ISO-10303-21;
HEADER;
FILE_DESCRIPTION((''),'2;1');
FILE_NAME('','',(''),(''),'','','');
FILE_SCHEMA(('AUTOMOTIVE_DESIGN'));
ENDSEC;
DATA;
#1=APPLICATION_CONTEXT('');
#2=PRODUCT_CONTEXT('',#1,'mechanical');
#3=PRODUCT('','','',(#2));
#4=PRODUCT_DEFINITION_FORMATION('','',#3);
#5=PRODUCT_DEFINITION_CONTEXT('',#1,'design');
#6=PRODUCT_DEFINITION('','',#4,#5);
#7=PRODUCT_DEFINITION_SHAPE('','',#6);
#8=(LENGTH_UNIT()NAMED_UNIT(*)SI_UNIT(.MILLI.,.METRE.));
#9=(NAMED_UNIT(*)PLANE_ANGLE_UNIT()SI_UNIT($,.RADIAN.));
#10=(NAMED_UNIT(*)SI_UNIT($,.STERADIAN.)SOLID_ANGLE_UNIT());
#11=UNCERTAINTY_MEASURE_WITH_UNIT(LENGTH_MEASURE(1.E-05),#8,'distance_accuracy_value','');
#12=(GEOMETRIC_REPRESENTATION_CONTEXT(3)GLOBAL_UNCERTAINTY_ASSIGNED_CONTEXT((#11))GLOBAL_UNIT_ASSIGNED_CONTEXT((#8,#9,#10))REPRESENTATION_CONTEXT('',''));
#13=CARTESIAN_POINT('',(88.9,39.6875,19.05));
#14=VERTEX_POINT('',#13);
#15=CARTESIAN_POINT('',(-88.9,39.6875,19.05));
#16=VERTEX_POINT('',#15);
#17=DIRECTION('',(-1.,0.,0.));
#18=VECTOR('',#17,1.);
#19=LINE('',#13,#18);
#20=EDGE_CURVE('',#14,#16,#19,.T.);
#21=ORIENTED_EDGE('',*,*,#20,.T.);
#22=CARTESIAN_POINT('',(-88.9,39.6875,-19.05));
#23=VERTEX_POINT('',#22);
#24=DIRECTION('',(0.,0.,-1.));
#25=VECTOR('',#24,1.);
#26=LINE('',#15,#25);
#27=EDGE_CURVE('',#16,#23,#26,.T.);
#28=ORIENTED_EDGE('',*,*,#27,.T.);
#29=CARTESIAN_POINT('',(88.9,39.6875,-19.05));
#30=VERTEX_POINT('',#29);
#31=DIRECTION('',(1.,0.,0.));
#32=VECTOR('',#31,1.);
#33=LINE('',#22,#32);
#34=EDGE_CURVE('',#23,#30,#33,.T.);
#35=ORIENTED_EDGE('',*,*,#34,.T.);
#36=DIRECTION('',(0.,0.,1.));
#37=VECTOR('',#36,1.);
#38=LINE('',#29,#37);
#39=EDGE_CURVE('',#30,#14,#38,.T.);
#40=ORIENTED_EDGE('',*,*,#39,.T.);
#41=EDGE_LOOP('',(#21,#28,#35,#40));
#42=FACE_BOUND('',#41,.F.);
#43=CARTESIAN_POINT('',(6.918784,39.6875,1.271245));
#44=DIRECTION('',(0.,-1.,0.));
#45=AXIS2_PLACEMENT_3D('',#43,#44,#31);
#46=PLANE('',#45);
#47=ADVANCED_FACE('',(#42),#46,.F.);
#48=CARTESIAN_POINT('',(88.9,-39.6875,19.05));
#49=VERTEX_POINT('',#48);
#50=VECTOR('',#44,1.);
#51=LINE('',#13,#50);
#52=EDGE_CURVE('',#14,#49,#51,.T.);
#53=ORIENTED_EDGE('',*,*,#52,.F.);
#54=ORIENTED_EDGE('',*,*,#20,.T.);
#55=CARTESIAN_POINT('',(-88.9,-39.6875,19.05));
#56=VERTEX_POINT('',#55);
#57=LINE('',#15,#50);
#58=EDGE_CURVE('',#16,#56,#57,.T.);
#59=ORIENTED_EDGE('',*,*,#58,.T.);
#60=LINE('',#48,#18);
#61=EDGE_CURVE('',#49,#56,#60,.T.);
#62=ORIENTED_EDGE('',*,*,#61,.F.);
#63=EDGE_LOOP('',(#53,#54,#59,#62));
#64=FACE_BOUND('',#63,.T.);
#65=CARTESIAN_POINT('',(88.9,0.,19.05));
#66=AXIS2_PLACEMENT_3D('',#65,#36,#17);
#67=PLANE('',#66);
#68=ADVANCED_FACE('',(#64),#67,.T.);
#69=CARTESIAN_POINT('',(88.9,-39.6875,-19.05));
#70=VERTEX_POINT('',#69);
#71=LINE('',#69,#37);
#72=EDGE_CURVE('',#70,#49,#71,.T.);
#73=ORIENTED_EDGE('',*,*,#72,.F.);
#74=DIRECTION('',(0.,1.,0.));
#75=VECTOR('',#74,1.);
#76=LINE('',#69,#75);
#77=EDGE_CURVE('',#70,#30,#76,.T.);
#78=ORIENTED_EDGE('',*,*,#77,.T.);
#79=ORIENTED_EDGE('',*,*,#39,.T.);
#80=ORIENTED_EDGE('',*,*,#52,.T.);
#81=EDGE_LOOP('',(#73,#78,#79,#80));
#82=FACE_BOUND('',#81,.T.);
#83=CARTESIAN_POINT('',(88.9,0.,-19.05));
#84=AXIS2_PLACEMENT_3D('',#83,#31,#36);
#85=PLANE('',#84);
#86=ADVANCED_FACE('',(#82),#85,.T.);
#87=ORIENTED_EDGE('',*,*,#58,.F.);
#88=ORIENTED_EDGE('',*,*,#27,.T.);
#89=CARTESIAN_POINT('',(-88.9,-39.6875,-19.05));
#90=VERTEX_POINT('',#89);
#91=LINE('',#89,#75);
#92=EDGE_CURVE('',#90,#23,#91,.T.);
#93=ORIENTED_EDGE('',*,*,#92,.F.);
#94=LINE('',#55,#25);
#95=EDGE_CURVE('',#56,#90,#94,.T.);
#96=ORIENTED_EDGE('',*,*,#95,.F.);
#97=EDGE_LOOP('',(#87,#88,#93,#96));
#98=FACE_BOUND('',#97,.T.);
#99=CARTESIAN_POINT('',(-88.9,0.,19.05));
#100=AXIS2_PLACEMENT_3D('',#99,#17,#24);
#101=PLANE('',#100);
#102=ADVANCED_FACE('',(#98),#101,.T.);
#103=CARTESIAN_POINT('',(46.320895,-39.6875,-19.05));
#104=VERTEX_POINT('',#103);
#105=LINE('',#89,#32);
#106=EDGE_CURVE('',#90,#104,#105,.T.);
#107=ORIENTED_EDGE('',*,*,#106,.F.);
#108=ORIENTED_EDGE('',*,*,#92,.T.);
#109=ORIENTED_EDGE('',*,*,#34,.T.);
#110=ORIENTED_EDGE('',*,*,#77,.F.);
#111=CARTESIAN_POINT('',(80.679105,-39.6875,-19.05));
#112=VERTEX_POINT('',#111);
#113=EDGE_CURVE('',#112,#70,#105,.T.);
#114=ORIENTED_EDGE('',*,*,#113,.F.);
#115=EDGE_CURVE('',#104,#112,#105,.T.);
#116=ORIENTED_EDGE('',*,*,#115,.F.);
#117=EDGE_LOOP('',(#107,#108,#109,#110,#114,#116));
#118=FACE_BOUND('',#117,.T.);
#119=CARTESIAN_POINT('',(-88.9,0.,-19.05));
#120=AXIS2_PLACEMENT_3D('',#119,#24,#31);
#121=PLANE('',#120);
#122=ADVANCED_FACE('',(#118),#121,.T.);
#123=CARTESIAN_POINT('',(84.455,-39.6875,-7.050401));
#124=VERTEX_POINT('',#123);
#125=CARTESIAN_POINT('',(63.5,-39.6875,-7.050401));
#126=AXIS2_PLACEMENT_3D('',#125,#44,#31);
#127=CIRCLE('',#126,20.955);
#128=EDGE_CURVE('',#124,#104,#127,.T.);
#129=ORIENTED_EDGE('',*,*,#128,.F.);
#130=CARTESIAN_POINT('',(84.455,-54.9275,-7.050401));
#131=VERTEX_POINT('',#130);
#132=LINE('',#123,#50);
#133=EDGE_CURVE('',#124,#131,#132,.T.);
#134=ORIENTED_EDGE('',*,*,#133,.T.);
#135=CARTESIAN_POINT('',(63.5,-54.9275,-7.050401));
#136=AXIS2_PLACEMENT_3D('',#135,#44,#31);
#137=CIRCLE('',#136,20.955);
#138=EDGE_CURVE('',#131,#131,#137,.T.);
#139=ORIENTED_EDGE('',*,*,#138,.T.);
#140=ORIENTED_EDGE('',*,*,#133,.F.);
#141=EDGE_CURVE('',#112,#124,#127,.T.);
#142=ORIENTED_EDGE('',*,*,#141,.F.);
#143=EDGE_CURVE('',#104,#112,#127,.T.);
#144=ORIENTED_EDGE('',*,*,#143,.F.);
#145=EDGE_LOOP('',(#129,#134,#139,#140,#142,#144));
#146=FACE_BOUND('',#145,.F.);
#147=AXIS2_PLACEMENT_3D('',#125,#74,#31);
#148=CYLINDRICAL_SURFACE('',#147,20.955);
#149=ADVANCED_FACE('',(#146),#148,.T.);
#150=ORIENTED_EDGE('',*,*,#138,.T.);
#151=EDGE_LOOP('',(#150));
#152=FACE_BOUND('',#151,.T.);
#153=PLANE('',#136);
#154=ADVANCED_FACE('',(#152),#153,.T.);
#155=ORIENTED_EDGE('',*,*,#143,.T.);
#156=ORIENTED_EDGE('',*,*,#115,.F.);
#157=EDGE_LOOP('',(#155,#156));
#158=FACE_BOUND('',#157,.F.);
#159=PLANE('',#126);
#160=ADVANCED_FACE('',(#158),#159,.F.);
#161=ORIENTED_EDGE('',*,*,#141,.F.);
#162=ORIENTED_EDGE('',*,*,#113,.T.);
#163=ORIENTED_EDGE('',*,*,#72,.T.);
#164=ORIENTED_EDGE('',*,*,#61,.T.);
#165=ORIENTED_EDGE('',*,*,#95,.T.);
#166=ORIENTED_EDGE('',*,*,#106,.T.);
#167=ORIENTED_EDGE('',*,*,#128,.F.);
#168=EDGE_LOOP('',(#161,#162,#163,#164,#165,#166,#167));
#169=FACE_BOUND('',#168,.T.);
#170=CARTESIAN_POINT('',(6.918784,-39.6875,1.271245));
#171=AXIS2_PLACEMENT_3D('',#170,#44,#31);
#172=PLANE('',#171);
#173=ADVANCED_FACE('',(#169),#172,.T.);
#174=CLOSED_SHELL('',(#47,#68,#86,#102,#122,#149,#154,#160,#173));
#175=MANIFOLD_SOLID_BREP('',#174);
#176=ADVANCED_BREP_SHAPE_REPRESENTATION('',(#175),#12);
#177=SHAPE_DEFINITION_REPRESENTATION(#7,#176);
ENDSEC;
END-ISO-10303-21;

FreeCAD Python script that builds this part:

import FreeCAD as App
import Part
import Sketcher
from FreeCAD import Vector
Q = App.Units.Quantity


def add_polygon(sketch, points):
    """Adds a closed chain of lines whose ends are joined by coincident constraints."""
    first, n = sketch.GeometryCount, len(points)
    for a, b in zip(points, points[1:] + points[:1]):
        sketch.addGeometry(Part.LineSegment(App.Vector(*a, 0), App.Vector(*b, 0)), False)
    for i in range(n):
        sketch.addConstraint(Sketcher.Constraint("Coincident", first + i, 2, first + (i + 1) % n, 1))

doc = App.newDocument("Part")
body = doc.addObject("PartDesign::Body", "Body")

sketch1 = body.newObject("Sketcher::SketchObject", "Sketch")
sketch1.AttachmentSupport = (doc.getObject("XZ_Plane"), [""])
sketch1.MapMode = "FlatFace"
add_polygon(sketch1, [(89, -19), (89, 19), (-89, 19), (-89, -19)])
sketch1.addConstraint(Sketcher.Constraint("Vertical", 0))
sketch1.addConstraint(Sketcher.Constraint("Horizontal", 1))
sketch1.addConstraint(Sketcher.Constraint("Vertical", 2))
sketch1.addConstraint(Sketcher.Constraint("Horizontal", 3))
sketch1.addConstraint(Sketcher.Constraint("Symmetric", 0, 2, 2, 2, -1, 1))
sketch1.addConstraint(Sketcher.Constraint("DistanceX", 1, 2, 1, 1, Q("7 in")))
sketch1.addConstraint(Sketcher.Constraint("DistanceY", 0, 1, 0, 2, Q("1.5 in")))
pad1 = body.newObject("PartDesign::Pad", "Pad")
pad1.Profile = sketch1
pad1.Length = Q("3.125 in")
pad1.Midplane = True

sketch2 = body.newObject("Sketcher::SketchObject", "Sketch001")
sketch2.AttachmentSupport = (doc.getObject("XZ_Plane"), [""])
sketch2.MapMode = "FlatFace"
sketch2.AttachmentOffset = App.Placement(Vector(0, 0, 1.5625 * 25.4), App.Rotation())
sketch2.addGeometry(Part.Circle(Vector(64, -7, 0), Vector(0, 0, 1), 21), False)
sketch2.addConstraint(Sketcher.Constraint("Diameter", 0, Q("1.65 in")))
sketch2.addConstraint(Sketcher.Constraint("DistanceX", -1, 1, 0, 3, Q("2.5 in")))
sketch2.addConstraint(Sketcher.Constraint("DistanceY", 0, 3, -1, 1, 7.050401))
pad2 = body.newObject("PartDesign::Pad", "Pad001")
pad2.Profile = sketch2
pad2.Length = Q("0.6 in")

doc.recompute()
